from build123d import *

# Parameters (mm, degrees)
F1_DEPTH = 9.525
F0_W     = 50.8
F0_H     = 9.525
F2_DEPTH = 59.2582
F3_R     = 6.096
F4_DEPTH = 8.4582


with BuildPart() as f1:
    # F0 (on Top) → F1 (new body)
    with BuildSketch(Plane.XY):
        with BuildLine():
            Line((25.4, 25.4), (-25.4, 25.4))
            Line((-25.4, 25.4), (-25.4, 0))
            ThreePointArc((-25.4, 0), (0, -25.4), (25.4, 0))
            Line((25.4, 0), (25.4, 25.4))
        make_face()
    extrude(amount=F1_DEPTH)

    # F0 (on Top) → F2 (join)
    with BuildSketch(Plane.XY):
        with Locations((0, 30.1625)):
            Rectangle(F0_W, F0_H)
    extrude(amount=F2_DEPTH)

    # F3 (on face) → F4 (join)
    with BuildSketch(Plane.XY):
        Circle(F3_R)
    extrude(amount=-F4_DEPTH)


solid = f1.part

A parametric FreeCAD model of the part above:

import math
import FreeCAD as App
import Part
import Sketcher
from FreeCAD import Vector
Q = App.Units.Quantity


def add_polygon(sketch, points):
    """Adds a closed chain of lines whose ends are joined by coincident constraints."""
    first, n = sketch.GeometryCount, len(points)
    for a, b in zip(points, points[1:] + points[:1]):
        sketch.addGeometry(Part.LineSegment(App.Vector(*a, 0), App.Vector(*b, 0)), False)
    for i in range(n):
        sketch.addConstraint(Sketcher.Constraint("Coincident", first + i, 2, first + (i + 1) % n, 1))

doc = App.newDocument("Part")
params = doc.addObject("Spreadsheet::Sheet", "Params")
for row, (alias, value) in enumerate([
    ("sketch1_radius", "1 in"),
    ("sketch1_height", "1 in"),
    ("pad1_length", "0.375 in"),
    ("sketch2_width", "2 in"),
    ("sketch2_height", "0.375 in"),
    ("pad2_length", "2.333 in"),
    ("sketch3_diameter", "0.48 in"),
    ("pad3_length", "0.333 in"),
], start=1):
    params.set(f"A{row}", alias)
    params.set(f"B{row}", "=" + value)
    params.setAlias(f"B{row}", alias)

body = doc.addObject("PartDesign::Body", "Body")

# Sketch on XY plane
sketch1 = doc.addObject("Sketcher::SketchObject", "Sketch")
body.addObject(sketch1)
sketch1.AttachmentSupport = (doc.XY_Plane, [""])
sketch1.MapMode = "FlatFace"
sketch1.addGeometry([
    Part.LineSegment(Vector(25.4, 25.4, 0), Vector(-25.4, 25.4, 0)),
    Part.LineSegment(Vector(-25.4, 25.4, 0), Vector(-25.4, 0, 0)),
    Part.ArcOfCircle(Part.Circle(Vector(0, 0, 0), Vector(0, 0, 1), 25.4), math.radians(180), math.radians(360)),
    Part.LineSegment(Vector(25.4, 0, 0), Vector(25.4, 25.4, 0)),
], False)
sketch1.addConstraint([
    Sketcher.Constraint("Coincident", 0, 2, 1, 1),
    Sketcher.Constraint("Tangent", 1, 2, 2, 1),
    Sketcher.Constraint("Tangent", 2, 2, 3, 1),
    Sketcher.Constraint("Coincident", 3, 2, 0, 1),
    Sketcher.Constraint("Horizontal", 0),
    Sketcher.Constraint("Vertical", 1),
    Sketcher.Constraint("Vertical", 3),
    Sketcher.Constraint("Coincident", 2, 3, -1, 1),
    Sketcher.Constraint("Radius", 2, Q("1 in")),
    Sketcher.Constraint("DistanceY", 1, 2, 1, 1, Q("1 in")),
])
sketch1.setExpression("Constraints[8]", "Params.sketch1_radius")
sketch1.setExpression("Constraints[9]", "Params.sketch1_height")
pad1 = doc.addObject("PartDesign::Pad", "Pad")
body.addObject(pad1)
pad1.Profile = sketch1
pad1.setExpression("Length", "Params.pad1_length")

# Sketch on XY plane
sketch2 = doc.addObject("Sketcher::SketchObject", "Sketch001")
body.addObject(sketch2)
sketch2.AttachmentSupport = (doc.XY_Plane, [""])
sketch2.MapMode = "FlatFace"
add_polygon(sketch2, [(-25.4, 34.925), (-25.4, 25.4), (25.4, 25.4), (25.4, 34.925)])  # lines 0-3
sketch2.addConstraint([
    Sketcher.Constraint("Vertical", 0),
    Sketcher.Constraint("Horizontal", 1),
    Sketcher.Constraint("Vertical", 2),
    Sketcher.Constraint("Horizontal", 3),
    Sketcher.Constraint("DistanceX", 1, 1, 1, 2, Q("2 in")),
    Sketcher.Constraint("DistanceX", 0, 2, -1, 1, Q("1 in")),
    Sketcher.Constraint("DistanceY", -1, 1, 0, 2, Q("1 in")),
    Sketcher.Constraint("DistanceY", 0, 2, 0, 1, Q("0.375 in")),
])
sketch2.setExpression("Constraints[8]", "Params.sketch2_width")
sketch2.setExpression("Constraints[11]", "Params.sketch2_height")
pad2 = doc.addObject("PartDesign::Pad", "Pad001")
body.addObject(pad2)
pad2.Profile = sketch2
pad2.setExpression("Length", "Params.pad2_length")

# Sketch on XY plane
sketch3 = doc.addObject("Sketcher::SketchObject", "Sketch002")
body.addObject(sketch3)
sketch3.AttachmentSupport = (doc.XY_Plane, [""])
sketch3.MapMode = "FlatFace"
sketch3.addGeometry(Part.Circle(Vector(0, 0, 0), Vector(0, 0, 1), 6.096), False)
sketch3.addConstraint([
    Sketcher.Constraint("Coincident", 0, 3, -1, 1),
    Sketcher.Constraint("Diameter", 0, Q("0.48 in")),
])
sketch3.setExpression("Constraints[1]", "Params.sketch3_diameter")
pad3 = doc.addObject("PartDesign::Pad", "Pad002")
body.addObject(pad3)
pad3.Profile = sketch3
pad3.setExpression("Length", "Params.pad3_length")
pad3.Reversed = True

doc.recompute()
